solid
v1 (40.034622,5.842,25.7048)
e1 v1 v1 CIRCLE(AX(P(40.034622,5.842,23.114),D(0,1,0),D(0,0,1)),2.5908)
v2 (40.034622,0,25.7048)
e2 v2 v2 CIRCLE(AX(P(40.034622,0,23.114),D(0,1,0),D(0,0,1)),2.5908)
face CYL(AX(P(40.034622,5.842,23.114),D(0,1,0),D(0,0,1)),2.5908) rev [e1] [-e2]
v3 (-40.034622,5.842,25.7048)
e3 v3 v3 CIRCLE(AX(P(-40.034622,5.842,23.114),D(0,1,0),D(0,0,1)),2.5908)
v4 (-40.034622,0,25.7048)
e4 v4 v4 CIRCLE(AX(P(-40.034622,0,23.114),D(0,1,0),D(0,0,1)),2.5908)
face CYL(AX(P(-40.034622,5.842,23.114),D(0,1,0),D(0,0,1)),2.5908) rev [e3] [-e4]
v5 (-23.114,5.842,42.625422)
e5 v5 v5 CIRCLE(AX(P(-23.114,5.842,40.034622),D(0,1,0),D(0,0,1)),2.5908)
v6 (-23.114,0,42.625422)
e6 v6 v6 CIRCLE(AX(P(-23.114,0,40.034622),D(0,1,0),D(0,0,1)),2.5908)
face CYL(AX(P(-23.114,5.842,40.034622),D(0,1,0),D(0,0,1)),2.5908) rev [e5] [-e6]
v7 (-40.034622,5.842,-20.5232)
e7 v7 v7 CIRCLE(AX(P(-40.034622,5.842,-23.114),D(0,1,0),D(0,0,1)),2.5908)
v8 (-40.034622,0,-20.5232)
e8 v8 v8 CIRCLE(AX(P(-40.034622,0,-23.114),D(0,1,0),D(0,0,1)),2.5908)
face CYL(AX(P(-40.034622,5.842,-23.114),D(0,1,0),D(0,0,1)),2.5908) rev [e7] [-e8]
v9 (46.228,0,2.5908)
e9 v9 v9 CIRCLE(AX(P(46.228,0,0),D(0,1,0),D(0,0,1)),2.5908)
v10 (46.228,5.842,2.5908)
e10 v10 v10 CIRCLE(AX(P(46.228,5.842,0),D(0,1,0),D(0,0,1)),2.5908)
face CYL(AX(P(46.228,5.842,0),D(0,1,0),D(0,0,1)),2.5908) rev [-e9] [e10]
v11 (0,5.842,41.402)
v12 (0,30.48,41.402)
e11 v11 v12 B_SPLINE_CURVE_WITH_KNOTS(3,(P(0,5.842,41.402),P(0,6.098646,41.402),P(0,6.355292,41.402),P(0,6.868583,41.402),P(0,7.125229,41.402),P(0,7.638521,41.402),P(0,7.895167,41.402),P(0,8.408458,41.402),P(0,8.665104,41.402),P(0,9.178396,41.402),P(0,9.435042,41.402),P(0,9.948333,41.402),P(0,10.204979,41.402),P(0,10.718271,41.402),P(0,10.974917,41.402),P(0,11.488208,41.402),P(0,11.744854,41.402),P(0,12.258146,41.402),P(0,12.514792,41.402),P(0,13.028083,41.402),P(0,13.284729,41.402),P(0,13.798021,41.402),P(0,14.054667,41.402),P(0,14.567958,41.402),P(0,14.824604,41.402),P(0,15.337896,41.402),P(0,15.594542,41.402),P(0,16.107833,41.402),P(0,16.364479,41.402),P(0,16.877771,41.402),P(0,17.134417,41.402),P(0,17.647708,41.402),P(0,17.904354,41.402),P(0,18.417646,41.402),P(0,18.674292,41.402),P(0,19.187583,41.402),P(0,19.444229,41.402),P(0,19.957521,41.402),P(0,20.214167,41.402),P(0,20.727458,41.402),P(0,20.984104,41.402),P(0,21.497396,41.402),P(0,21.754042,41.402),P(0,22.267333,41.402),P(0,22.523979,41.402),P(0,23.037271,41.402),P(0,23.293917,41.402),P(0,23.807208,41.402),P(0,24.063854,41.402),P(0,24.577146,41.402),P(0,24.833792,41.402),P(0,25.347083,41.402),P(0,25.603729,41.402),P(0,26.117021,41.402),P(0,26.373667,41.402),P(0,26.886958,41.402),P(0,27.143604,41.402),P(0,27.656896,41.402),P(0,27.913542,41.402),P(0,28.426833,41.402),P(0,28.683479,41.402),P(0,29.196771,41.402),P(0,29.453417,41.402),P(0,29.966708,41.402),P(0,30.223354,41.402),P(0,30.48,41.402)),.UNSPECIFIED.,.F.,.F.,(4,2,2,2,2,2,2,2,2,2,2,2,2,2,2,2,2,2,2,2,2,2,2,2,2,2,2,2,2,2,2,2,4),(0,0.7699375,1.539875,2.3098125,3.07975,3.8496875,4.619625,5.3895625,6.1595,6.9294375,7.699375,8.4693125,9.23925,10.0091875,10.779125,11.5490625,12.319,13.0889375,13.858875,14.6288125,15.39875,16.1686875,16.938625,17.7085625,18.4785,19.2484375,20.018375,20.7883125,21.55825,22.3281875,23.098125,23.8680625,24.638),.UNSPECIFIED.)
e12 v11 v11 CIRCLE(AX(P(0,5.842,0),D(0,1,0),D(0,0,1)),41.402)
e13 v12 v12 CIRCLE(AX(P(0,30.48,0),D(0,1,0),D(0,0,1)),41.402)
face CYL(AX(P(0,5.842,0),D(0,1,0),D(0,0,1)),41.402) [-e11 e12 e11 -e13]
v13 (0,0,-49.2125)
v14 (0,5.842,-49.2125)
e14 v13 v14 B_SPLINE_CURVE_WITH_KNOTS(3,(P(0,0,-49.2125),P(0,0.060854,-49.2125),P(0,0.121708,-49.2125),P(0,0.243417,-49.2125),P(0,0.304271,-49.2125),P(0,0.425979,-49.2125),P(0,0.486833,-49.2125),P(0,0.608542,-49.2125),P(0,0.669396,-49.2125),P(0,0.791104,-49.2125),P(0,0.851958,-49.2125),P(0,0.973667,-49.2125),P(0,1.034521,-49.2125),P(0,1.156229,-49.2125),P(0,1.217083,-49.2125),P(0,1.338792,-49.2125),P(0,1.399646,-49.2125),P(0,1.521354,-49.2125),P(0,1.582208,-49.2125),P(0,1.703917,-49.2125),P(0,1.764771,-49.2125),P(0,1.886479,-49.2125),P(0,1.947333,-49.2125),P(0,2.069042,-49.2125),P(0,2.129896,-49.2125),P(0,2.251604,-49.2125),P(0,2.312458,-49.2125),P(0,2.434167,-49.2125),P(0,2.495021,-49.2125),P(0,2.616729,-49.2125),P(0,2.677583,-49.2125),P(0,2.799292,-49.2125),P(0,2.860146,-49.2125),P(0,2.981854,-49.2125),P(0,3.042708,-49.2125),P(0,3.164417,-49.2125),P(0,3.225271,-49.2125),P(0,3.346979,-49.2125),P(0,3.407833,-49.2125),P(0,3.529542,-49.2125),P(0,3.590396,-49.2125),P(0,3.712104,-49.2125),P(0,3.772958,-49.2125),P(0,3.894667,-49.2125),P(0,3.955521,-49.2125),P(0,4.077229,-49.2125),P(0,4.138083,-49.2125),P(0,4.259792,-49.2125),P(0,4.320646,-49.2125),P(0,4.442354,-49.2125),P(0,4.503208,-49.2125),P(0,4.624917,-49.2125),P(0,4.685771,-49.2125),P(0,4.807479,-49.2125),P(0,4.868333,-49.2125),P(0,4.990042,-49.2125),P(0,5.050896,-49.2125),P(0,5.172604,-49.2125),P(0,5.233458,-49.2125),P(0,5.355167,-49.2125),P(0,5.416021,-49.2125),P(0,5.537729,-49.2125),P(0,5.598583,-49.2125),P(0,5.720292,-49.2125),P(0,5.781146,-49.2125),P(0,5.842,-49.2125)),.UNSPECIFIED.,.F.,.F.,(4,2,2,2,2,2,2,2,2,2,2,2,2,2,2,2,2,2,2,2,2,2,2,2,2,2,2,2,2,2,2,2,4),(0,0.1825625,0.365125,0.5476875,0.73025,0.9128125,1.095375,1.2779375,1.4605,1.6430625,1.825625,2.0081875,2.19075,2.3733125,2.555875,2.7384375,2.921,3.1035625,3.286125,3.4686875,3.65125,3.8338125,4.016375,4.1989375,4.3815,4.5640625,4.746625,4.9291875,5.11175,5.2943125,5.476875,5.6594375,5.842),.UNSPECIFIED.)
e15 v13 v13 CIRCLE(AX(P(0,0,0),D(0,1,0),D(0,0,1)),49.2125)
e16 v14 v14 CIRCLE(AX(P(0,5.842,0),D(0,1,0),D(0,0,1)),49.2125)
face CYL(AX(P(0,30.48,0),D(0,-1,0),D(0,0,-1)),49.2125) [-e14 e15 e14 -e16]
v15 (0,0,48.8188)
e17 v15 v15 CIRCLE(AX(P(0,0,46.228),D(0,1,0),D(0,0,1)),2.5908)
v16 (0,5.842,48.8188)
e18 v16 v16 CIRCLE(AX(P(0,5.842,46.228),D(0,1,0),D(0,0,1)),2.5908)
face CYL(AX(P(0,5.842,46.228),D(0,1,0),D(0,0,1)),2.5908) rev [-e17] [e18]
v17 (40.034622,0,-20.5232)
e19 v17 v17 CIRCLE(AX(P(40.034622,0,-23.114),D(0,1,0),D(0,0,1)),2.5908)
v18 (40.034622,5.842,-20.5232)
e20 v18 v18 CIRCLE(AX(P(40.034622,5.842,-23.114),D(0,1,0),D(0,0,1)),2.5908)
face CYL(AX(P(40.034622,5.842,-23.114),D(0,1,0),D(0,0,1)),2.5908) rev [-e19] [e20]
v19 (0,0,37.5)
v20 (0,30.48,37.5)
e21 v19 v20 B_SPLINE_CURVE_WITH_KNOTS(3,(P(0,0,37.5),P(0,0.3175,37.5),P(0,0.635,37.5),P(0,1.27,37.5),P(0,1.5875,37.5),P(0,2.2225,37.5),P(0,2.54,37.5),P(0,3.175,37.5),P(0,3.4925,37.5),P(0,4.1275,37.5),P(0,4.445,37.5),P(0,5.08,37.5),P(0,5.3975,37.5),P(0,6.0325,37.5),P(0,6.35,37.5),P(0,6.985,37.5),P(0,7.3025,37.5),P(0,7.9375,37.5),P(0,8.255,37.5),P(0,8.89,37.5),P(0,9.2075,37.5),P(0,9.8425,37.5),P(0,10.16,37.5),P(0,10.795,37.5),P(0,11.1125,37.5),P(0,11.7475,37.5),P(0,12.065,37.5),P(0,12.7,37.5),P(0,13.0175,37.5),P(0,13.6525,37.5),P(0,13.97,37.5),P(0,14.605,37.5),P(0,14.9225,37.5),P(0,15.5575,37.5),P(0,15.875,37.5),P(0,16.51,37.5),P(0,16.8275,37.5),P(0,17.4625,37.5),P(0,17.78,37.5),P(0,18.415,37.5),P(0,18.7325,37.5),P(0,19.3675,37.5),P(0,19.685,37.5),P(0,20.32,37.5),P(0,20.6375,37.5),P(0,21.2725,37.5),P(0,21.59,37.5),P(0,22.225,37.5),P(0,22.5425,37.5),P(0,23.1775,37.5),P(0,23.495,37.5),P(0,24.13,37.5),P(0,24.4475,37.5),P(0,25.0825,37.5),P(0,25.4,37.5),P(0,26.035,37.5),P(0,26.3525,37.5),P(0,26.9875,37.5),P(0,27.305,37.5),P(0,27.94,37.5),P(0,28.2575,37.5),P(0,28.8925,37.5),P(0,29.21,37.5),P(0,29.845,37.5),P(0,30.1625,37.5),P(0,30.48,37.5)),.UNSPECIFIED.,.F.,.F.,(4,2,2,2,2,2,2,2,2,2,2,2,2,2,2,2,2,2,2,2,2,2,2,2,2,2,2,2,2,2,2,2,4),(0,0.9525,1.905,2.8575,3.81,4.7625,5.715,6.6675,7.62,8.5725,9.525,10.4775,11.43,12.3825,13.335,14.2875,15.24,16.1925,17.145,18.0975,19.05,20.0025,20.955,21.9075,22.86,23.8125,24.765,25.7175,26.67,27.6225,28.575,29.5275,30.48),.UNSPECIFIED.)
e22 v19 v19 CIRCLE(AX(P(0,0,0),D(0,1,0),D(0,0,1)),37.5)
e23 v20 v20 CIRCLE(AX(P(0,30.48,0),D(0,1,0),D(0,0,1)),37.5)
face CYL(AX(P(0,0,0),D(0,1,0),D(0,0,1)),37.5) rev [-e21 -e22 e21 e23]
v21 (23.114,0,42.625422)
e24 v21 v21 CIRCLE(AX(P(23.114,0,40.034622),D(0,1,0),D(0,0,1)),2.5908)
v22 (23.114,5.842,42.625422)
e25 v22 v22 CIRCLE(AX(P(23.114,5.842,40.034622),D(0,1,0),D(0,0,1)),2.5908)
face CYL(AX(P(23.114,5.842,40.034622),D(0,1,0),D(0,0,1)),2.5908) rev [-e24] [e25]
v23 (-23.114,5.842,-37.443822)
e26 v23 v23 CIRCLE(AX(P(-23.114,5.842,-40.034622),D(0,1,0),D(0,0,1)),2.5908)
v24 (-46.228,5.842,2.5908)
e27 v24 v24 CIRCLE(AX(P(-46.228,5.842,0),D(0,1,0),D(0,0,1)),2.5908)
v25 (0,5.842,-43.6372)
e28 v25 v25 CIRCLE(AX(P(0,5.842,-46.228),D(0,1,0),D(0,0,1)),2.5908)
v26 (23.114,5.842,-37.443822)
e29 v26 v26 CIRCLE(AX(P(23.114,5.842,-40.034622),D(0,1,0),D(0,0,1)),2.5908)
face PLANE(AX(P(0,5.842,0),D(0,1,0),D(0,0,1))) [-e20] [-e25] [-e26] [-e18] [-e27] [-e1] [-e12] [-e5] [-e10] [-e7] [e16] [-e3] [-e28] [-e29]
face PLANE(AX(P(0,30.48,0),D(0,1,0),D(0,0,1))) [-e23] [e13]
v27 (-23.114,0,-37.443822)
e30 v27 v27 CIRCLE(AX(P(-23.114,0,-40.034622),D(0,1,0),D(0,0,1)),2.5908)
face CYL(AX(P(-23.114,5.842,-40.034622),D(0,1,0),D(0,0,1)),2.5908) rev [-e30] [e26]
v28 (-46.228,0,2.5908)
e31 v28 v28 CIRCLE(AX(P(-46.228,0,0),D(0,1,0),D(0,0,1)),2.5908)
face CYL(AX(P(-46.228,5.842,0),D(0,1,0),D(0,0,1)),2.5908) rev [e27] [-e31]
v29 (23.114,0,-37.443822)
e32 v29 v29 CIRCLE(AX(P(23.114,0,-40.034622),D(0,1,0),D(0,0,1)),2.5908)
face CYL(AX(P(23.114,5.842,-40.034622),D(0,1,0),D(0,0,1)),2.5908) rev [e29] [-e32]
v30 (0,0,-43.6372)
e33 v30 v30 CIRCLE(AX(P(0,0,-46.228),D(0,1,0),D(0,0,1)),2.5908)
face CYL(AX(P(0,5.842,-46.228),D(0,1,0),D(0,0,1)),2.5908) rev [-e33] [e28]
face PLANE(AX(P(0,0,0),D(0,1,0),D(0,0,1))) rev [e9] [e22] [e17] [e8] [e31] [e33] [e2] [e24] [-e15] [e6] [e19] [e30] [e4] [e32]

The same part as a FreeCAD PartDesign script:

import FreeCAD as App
import Part
import Sketcher
Q = App.Units.Quantity


def add_polygon(sketch, points):
    """Adds a closed chain of lines whose ends are joined by coincident constraints."""
    first, n = sketch.GeometryCount, len(points)
    for a, b in zip(points, points[1:] + points[:1]):
        sketch.addGeometry(Part.LineSegment(App.Vector(*a, 0), App.Vector(*b, 0)), False)
    for i in range(n):
        sketch.addConstraint(Sketcher.Constraint("Coincident", first + i, 2, first + (i + 1) % n, 1))

doc = App.newDocument("Part")
body = doc.addObject("PartDesign::Body", "Body")

sketch1 = body.newObject("Sketcher::SketchObject", "Sketch")
sketch1.AttachmentSupport = (doc.getObject("XZ_Plane"), [""])
sketch1.MapMode = "FlatFace"
sketch1.addGeometry(Part.Circle(App.Vector(0, 0, 0), App.Vector(0, 0, 1), 49), False)
sketch1.addConstraint(Sketcher.Constraint("Coincident", 0, 3, -1, 1))
sketch1.addConstraint(Sketcher.Constraint("Diameter", 0, Q("3.875 in")))
pad1 = body.newObject("PartDesign::Pad", "Pad")
pad1.Profile = sketch1
pad1.Length = Q("1.2 in")
pad1.Reversed = True

sketch2 = body.newObject("Sketcher::SketchObject", "Sketch001")
sketch2.AttachmentSupport = (doc.getObject("XZ_Plane"), [""])
sketch2.MapMode = "FlatFace"
sketch2.AttachmentOffset = App.Placement(App.Vector(0, 0, -1.2 * 25.4), App.Rotation())
add_polygon(sketch2, [(-64, -64), (-64, 64), (64, 64), (64, -64)])
sketch2.addGeometry(Part.Circle(App.Vector(0, 0, 0), App.Vector(0, 0, 1), 41), False)
sketch2.addConstraint(Sketcher.Constraint("Vertical", 0))
sketch2.addConstraint(Sketcher.Constraint("Horizontal", 1))
sketch2.addConstraint(Sketcher.Constraint("Vertical", 2))
sketch2.addConstraint(Sketcher.Constraint("Horizontal", 3))
sketch2.addConstraint(Sketcher.Constraint("Coincident", 4, 3, -1, 1))
sketch2.addConstraint(Sketcher.Constraint("Symmetric", 0, 2, 2, 2, -1, 1))
sketch2.addConstraint(Sketcher.Constraint("Equal", 3, 0))
sketch2.addConstraint(Sketcher.Constraint("Diameter", 4, Q("3.26 in")))
sketch2.addConstraint(Sketcher.Constraint("DistanceX", 1, 1, 1, 2, Q("128.922 mm")))
pocket1 = body.newObject("PartDesign::Pocket", "Pocket")
pocket1.Profile = sketch2
pocket1.Length = Q("0.97 in")
pocket1.Reversed = True

sketch3 = body.newObject("Sketcher::SketchObject", "Sketch002")
sketch3.AttachmentSupport = (doc.getObject("XZ_Plane"), [""])
sketch3.MapMode = "FlatFace"
sketch3.AttachmentOffset = App.Placement(App.Vector(0, 0, -1.2 * 25.4), App.Rotation())
sketch3.addGeometry(Part.Circle(App.Vector(0, 0, 0), App.Vector(0, 0, 1), 38), False)
sketch3.addConstraint(Sketcher.Constraint("Coincident", 0, 3, -1, 1))
sketch3.addConstraint(Sketcher.Constraint("Diameter", 0, Q("75 mm")))
pocket2 = body.newObject("PartDesign::Pocket", "Pocket001")
pocket2.Profile = sketch3
pocket2.Type = "ThroughAll"
pocket2.Reversed = True

sketch4 = body.newObject("Sketcher::SketchObject", "Sketch003")
sketch4.AttachmentSupport = (doc.getObject("XZ_Plane"), [""])
sketch4.MapMode = "FlatFace"
sketch4.AttachmentOffset = App.Placement(App.Vector(0, 0, -0.23 * 25.4), App.Rotation())
sketch4.addGeometry(Part.Circle(App.Vector(0, -46.2, 0), App.Vector(0, 0, 1), 2.6), False)
sketch4.addConstraint(Sketcher.Constraint("PointOnObject", 0, 3, -2))
sketch4.addConstraint(Sketcher.Constraint("Diameter", 0, Q("0.204 in")))
sketch4.addConstraint(Sketcher.Constraint("DistanceY", 0, 3, -1, 1, Q("1.82 in")))
doc.recompute()
hole = body.newObject("PartDesign::Hole", "Hole")
hole.Profile = sketch4
hole.ThreadType = "None"
hole.Diameter = Q("0.204 in")
hole.DepthType = "ThroughAll"
hole.Reversed = True
doc.recompute()

polarpattern = body.newObject("PartDesign::PolarPattern", "PolarPattern")
polarpattern.Originals = [hole]
polarpattern.Axis = (doc.getObject("Y_Axis"), [""])
polarpattern.Angle = 360
polarpattern.Occurrences = 12
body.Tip = polarpattern

doc.recompute()
